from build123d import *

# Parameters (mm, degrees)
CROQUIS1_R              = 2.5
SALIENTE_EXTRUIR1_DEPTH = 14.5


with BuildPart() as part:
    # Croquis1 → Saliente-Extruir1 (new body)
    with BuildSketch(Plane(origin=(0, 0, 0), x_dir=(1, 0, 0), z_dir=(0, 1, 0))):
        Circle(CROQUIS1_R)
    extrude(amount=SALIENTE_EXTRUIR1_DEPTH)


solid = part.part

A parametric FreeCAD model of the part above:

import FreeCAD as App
import Part
import Sketcher
Q = App.Units.Quantity

doc = App.newDocument("Part")
body = doc.addObject("PartDesign::Body", "Body")

# Sketch on XZ plane
sketch1 = body.newObject("Sketcher::SketchObject", "Sketch")
sketch1.AttachmentSupport = (doc.getObject("XZ_Plane"), [""])
sketch1.MapMode = "FlatFace"
sketch1.addGeometry(Part.Circle(App.Vector(0, 0, 0), App.Vector(0, 0, 1), 2.5), False)
sketch1.addConstraint(Sketcher.Constraint("Coincident", 0, 3, -1, 1))
sketch1.addConstraint(Sketcher.Constraint("Diameter", 0, Q("5 mm")))
pad1 = body.newObject("PartDesign::Pad", "Pad")
pad1.Profile = sketch1
pad1.Length = 14.5
pad1.Reversed = True

doc.recompute()
